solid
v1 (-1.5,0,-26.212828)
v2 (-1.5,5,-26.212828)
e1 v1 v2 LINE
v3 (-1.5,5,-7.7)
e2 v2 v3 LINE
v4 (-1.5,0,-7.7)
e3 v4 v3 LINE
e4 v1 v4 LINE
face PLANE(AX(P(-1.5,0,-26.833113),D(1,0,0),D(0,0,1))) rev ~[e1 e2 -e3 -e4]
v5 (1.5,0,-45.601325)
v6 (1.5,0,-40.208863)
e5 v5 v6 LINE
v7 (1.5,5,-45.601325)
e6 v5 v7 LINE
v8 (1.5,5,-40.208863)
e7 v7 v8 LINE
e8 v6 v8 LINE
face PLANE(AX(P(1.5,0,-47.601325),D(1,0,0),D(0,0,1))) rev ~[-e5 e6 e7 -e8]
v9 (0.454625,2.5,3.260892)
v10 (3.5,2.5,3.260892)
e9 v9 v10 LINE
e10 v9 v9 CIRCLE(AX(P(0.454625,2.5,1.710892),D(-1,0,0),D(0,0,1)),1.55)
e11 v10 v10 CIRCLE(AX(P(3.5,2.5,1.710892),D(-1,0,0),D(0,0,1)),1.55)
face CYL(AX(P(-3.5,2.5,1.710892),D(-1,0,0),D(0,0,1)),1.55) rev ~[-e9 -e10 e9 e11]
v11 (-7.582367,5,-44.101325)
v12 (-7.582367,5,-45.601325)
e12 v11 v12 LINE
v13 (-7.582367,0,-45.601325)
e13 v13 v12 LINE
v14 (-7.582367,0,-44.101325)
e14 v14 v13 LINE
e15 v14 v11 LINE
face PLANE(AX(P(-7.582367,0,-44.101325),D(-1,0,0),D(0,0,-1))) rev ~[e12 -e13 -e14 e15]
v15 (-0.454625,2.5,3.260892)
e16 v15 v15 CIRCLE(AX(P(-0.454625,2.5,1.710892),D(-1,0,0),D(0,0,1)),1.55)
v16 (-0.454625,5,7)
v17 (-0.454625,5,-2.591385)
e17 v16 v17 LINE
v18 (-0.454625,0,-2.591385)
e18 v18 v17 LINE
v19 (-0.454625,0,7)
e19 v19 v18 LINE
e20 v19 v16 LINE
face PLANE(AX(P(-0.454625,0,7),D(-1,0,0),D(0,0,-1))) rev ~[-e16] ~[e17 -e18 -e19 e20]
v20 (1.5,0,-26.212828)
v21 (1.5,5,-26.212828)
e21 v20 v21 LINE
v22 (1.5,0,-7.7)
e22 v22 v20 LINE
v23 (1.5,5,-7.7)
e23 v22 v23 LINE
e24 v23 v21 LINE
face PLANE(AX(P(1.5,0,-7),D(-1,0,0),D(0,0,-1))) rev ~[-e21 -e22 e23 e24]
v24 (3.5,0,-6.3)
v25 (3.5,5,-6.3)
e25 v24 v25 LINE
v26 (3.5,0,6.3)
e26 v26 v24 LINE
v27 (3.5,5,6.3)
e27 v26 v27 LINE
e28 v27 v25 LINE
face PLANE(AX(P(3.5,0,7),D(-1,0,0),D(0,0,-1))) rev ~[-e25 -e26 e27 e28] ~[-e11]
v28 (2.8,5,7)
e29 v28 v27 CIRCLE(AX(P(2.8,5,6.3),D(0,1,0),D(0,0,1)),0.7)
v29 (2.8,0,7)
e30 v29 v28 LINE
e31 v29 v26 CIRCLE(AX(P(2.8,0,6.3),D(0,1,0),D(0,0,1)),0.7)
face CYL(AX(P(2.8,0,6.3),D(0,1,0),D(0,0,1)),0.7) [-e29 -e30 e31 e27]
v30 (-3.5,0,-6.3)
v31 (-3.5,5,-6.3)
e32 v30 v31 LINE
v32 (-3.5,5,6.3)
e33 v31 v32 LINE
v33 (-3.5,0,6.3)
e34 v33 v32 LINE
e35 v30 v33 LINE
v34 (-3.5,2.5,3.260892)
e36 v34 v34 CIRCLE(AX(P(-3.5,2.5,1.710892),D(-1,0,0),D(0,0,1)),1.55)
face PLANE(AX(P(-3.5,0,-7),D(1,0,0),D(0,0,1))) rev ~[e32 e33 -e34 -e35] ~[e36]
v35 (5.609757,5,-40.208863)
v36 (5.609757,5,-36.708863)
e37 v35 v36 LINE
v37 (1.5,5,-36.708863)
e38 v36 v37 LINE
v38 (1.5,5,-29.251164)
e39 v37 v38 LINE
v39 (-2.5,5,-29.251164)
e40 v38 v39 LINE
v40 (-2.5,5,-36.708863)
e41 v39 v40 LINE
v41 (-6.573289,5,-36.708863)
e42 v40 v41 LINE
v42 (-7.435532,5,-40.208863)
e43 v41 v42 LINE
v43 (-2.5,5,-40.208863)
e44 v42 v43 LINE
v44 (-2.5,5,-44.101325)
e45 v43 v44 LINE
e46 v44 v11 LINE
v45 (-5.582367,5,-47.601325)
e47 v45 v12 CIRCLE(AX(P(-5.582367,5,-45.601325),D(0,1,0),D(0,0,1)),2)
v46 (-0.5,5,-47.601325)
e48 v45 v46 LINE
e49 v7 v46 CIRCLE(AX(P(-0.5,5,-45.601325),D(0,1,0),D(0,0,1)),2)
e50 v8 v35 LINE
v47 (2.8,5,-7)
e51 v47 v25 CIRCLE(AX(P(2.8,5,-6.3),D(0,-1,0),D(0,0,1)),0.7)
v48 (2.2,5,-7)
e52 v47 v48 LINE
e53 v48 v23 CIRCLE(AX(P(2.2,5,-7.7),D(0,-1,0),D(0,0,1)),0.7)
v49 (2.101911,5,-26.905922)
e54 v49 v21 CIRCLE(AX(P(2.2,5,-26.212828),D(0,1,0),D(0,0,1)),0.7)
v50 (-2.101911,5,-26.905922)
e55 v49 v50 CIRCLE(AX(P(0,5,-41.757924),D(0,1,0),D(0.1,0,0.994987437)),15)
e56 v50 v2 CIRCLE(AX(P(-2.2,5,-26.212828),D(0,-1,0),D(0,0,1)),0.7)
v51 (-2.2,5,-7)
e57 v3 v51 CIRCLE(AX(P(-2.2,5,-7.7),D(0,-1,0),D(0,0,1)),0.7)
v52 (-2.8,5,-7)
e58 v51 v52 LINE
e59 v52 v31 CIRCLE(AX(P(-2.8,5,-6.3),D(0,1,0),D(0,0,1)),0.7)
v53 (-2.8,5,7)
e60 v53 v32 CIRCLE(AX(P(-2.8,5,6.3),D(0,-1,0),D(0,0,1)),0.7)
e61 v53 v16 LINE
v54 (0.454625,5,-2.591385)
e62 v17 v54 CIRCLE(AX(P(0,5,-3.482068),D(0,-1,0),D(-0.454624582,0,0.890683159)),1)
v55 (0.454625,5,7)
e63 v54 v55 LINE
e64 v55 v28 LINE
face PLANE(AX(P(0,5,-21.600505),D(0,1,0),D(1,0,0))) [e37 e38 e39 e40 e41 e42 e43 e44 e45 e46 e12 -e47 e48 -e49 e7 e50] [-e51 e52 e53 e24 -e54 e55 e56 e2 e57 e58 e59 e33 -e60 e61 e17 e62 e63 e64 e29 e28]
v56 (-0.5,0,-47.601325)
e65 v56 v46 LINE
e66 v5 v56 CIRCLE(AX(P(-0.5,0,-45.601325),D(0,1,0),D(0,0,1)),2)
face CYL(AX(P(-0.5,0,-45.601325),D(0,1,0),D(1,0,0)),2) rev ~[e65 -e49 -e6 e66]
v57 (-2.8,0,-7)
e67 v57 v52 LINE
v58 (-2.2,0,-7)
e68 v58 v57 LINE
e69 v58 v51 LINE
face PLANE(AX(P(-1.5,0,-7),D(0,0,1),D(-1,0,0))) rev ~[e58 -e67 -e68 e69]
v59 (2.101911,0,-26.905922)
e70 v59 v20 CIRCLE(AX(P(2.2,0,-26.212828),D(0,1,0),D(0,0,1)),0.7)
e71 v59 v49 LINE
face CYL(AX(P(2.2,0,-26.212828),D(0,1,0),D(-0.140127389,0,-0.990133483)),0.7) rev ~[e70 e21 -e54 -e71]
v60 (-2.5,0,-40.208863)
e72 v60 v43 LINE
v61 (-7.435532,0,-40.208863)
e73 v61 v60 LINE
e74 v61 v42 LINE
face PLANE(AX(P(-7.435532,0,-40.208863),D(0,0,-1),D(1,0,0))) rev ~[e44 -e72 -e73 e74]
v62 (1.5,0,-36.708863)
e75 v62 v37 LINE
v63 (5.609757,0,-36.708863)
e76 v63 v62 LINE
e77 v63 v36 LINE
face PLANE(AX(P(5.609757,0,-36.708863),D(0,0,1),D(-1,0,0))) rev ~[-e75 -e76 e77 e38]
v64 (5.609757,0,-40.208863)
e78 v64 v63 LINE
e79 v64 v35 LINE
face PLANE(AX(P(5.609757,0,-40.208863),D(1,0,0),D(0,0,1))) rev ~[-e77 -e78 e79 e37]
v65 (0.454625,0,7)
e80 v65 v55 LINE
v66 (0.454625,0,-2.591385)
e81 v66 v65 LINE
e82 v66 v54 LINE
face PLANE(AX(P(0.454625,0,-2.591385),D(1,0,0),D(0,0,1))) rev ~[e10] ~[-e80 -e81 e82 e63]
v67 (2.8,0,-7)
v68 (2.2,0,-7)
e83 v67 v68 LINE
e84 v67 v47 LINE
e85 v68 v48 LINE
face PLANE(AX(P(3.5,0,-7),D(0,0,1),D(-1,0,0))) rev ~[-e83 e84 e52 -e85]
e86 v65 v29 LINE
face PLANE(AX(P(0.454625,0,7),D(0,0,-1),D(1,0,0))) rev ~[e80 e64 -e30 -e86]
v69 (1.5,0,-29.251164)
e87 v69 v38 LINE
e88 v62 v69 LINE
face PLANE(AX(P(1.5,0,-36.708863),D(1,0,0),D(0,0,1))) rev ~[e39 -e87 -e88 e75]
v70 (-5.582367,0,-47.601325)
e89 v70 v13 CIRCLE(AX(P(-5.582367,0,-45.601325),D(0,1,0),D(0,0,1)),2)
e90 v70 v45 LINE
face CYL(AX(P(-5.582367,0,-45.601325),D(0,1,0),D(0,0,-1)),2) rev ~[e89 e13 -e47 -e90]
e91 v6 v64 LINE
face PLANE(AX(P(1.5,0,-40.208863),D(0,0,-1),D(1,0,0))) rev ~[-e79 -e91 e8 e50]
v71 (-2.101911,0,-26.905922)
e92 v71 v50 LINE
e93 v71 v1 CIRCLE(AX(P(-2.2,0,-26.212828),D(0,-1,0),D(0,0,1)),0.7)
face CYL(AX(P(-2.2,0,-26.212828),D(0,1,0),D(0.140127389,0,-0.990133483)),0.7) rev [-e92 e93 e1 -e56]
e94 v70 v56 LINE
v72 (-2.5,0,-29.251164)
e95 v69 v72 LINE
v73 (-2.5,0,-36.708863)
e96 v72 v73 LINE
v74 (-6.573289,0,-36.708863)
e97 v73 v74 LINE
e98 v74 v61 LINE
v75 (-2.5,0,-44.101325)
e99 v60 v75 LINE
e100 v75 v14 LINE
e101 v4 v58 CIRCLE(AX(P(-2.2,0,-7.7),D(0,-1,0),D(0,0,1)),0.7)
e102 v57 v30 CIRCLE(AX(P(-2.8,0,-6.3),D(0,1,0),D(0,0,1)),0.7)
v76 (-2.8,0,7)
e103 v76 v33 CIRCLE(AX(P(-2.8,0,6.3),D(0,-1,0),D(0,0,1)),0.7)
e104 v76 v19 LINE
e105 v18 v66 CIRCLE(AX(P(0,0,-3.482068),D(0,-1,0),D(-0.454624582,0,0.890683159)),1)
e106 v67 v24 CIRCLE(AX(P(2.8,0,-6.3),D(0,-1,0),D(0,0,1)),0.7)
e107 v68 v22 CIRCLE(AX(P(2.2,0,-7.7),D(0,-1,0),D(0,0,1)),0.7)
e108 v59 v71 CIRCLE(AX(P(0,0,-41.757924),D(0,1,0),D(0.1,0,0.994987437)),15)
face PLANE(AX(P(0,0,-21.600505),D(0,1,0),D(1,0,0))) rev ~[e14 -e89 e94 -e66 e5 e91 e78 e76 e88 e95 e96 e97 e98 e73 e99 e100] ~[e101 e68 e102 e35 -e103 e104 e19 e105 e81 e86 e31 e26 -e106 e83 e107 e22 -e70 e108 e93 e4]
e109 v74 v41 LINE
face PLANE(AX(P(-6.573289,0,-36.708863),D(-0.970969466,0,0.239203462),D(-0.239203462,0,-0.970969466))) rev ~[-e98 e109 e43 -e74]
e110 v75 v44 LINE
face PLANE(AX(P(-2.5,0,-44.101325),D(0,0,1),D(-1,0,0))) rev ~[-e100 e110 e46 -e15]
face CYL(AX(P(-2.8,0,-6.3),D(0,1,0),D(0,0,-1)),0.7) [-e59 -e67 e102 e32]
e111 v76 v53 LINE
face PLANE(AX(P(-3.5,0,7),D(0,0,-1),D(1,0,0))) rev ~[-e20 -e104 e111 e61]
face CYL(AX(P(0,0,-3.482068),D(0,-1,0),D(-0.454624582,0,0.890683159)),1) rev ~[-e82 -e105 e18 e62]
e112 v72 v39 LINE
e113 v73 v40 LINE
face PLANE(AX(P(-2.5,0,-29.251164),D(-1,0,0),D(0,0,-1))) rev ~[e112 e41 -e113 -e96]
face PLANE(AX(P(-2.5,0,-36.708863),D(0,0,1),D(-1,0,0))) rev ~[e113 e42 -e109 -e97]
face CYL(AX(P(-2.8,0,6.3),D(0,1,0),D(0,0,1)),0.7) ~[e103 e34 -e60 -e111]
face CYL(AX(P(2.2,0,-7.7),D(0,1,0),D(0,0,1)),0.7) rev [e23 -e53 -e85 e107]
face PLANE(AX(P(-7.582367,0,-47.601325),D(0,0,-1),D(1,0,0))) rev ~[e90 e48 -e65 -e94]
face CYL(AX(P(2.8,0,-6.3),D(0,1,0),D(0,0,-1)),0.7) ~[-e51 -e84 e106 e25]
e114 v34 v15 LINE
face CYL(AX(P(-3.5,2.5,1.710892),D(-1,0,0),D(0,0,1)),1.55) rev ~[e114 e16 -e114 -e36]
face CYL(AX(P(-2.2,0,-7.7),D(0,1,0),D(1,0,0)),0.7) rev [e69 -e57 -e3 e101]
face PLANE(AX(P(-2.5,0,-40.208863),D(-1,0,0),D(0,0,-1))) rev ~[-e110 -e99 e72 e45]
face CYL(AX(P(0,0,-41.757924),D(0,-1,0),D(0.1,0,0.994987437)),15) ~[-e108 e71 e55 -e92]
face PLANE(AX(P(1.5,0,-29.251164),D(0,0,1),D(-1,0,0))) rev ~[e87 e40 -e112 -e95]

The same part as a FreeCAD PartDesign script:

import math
import FreeCAD as App
import Part
import Sketcher

V = App.Vector


def edges_at(feature, points):
    """Names of the edges that pass closest to the given points."""
    edges = feature.Shape.Edges
    near = lambda p: min(range(len(edges)), key=lambda i: edges[i].distToShape(Part.Vertex(*p))[0])
    return sorted({f"Edge{near(p) + 1}" for p in points})

doc = App.newDocument("Part")
body = doc.addObject("PartDesign::Body", "Body")

sketch1 = body.newObject("Sketcher::SketchObject", "Sketch")
sketch1.AttachmentSupport = (doc.getObject("XZ_Plane"), [""])
sketch1.MapMode = "FlatFace"
sketch1.addGeometry(Part.LineSegment(V(0.5, -2.6, 0), V(0.5, 7, 0)), False)
sketch1.addGeometry(Part.LineSegment(V(0.5, 7, 0), V(3.5, 7, 0)), False)
sketch1.addGeometry(Part.LineSegment(V(3.5, 7, 0), V(3.5, -7, 0)), False)
sketch1.addGeometry(Part.LineSegment(V(3.5, -7, 0), V(1.5, -7, 0)), False)
sketch1.addGeometry(Part.LineSegment(V(1.5, -7, 0), V(1.5, -26.8, 0)), False)
sketch1.addGeometry(Part.ArcOfCircle(Part.Circle(V(0, -41.8, 0), V(0, 0, 1), 15), math.radians(96), math.radians(444)), False)
sketch1.addGeometry(Part.LineSegment(V(-1.5, -26.8, 0), V(-1.5, -7, 0)), False)
sketch1.addGeometry(Part.LineSegment(V(-1.5, -7, 0), V(-3.5, -7, 0)), False)
sketch1.addGeometry(Part.LineSegment(V(-3.5, -7, 0), V(-3.5, 7, 0)), False)
sketch1.addGeometry(Part.LineSegment(V(-3.5, 7, 0), V(-0.5, 7, 0)), False)
sketch1.addGeometry(Part.LineSegment(V(-0.5, 7, 0), V(-0.5, -2.6, 0)), False)
sketch1.addGeometry(Part.ArcOfCircle(Part.Circle(V(0, -3.5, 0), V(0, 0, 1), 1), math.radians(117), math.radians(423)), False)
sketch1.addGeometry(Part.LineSegment(V(5.6, -36.7, 0), V(1.5, -36.7, 0)), False)
sketch1.addGeometry(Part.LineSegment(V(1.5, -36.7, 0), V(1.5, -29.3, 0)), False)
sketch1.addGeometry(Part.LineSegment(V(1.5, -29.3, 0), V(-2.5, -29.3, 0)), False)
sketch1.addGeometry(Part.LineSegment(V(-2.5, -29.3, 0), V(-2.5, -36.7, 0)), False)
sketch1.addGeometry(Part.LineSegment(V(-2.5, -36.7, 0), V(-6.6, -36.7, 0)), False)
sketch1.addGeometry(Part.LineSegment(V(-6.6, -36.7, 0), V(-7.4, -40.2, 0)), False)
sketch1.addGeometry(Part.LineSegment(V(-7.4, -40.2, 0), V(-2.5, -40.2, 0)), False)
sketch1.addGeometry(Part.LineSegment(V(-2.5, -40.2, 0), V(-2.5, -44.1, 0)), False)
sketch1.addGeometry(Part.LineSegment(V(-2.5, -44.1, 0), V(-7.6, -44.1, 0)), False)
sketch1.addGeometry(Part.LineSegment(V(-7.6, -44.1, 0), V(-7.6, -47.6, 0)), False)
sketch1.addGeometry(Part.LineSegment(V(-7.6, -47.6, 0), V(1.5, -47.6, 0)), False)
sketch1.addGeometry(Part.LineSegment(V(1.5, -47.6, 0), V(1.5, -40.2, 0)), False)
sketch1.addGeometry(Part.LineSegment(V(1.5, -40.2, 0), V(5.6, -40.2, 0)), False)
sketch1.addGeometry(Part.LineSegment(V(5.6, -40.2, 0), V(5.6, -36.7, 0)), False)
sketch1.addConstraint(Sketcher.Constraint("Coincident", 0, 2, 1, 1))
sketch1.addConstraint(Sketcher.Constraint("Coincident", 1, 2, 2, 1))
sketch1.addConstraint(Sketcher.Constraint("Coincident", 2, 2, 3, 1))
sketch1.addConstraint(Sketcher.Constraint("Coincident", 3, 2, 4, 1))
sketch1.addConstraint(Sketcher.Constraint("Coincident", 4, 2, 5, 2))
sketch1.addConstraint(Sketcher.Constraint("Coincident", 5, 1, 6, 1))
sketch1.addConstraint(Sketcher.Constraint("Coincident", 6, 2, 7, 1))
sketch1.addConstraint(Sketcher.Constraint("Coincident", 7, 2, 8, 1))
sketch1.addConstraint(Sketcher.Constraint("Coincident", 8, 2, 9, 1))
sketch1.addConstraint(Sketcher.Constraint("Coincident", 9, 2, 10, 1))
sketch1.addConstraint(Sketcher.Constraint("Coincident", 10, 2, 11, 1))
sketch1.addConstraint(Sketcher.Constraint("Coincident", 11, 2, 0, 1))
sketch1.addConstraint(Sketcher.Constraint("Coincident", 12, 2, 13, 1))
sketch1.addConstraint(Sketcher.Constraint("Coincident", 13, 2, 14, 1))
sketch1.addConstraint(Sketcher.Constraint("Coincident", 14, 2, 15, 1))
sketch1.addConstraint(Sketcher.Constraint("Coincident", 15, 2, 16, 1))
sketch1.addConstraint(Sketcher.Constraint("Coincident", 16, 2, 17, 1))
sketch1.addConstraint(Sketcher.Constraint("Coincident", 17, 2, 18, 1))
sketch1.addConstraint(Sketcher.Constraint("Coincident", 18, 2, 19, 1))
sketch1.addConstraint(Sketcher.Constraint("Coincident", 19, 2, 20, 1))
sketch1.addConstraint(Sketcher.Constraint("Coincident", 20, 2, 21, 1))
sketch1.addConstraint(Sketcher.Constraint("Coincident", 21, 2, 22, 1))
sketch1.addConstraint(Sketcher.Constraint("Coincident", 22, 2, 23, 1))
sketch1.addConstraint(Sketcher.Constraint("Coincident", 23, 2, 24, 1))
sketch1.addConstraint(Sketcher.Constraint("Coincident", 24, 2, 25, 1))
sketch1.addConstraint(Sketcher.Constraint("Coincident", 25, 2, 12, 1))
sketch1.addConstraint(Sketcher.Constraint("Vertical", 0))
sketch1.addConstraint(Sketcher.Constraint("Horizontal", 1))
sketch1.addConstraint(Sketcher.Constraint("Vertical", 2))
sketch1.addConstraint(Sketcher.Constraint("Horizontal", 3))
sketch1.addConstraint(Sketcher.Constraint("Vertical", 4))
sketch1.addConstraint(Sketcher.Constraint("Vertical", 6))
sketch1.addConstraint(Sketcher.Constraint("Horizontal", 7))
sketch1.addConstraint(Sketcher.Constraint("Vertical", 8))
sketch1.addConstraint(Sketcher.Constraint("Horizontal", 9))
sketch1.addConstraint(Sketcher.Constraint("Vertical", 10))
sketch1.addConstraint(Sketcher.Constraint("Horizontal", 12))
sketch1.addConstraint(Sketcher.Constraint("Vertical", 13))
sketch1.addConstraint(Sketcher.Constraint("Horizontal", 14))
sketch1.addConstraint(Sketcher.Constraint("Vertical", 15))
sketch1.addConstraint(Sketcher.Constraint("Horizontal", 16))
sketch1.addConstraint(Sketcher.Constraint("Horizontal", 18))
sketch1.addConstraint(Sketcher.Constraint("Vertical", 19))
sketch1.addConstraint(Sketcher.Constraint("Horizontal", 20))
sketch1.addConstraint(Sketcher.Constraint("Vertical", 21))
sketch1.addConstraint(Sketcher.Constraint("Horizontal", 22))
sketch1.addConstraint(Sketcher.Constraint("Vertical", 23))
sketch1.addConstraint(Sketcher.Constraint("Horizontal", 24))
sketch1.addConstraint(Sketcher.Constraint("Vertical", 25))
sketch1.addConstraint(Sketcher.Constraint("Symmetric", 1, 2, 7, 2, -1, 1))
sketch1.addConstraint(Sketcher.Constraint("Symmetric", 4, 2, 5, 1, -2))
sketch1.addConstraint(Sketcher.Constraint("Symmetric", 0, 2, 9, 2, -2))
sketch1.addConstraint(Sketcher.Constraint("PointOnObject", 11, 3, -2))
sketch1.addConstraint(Sketcher.Constraint("Horizontal", 3, 2, 6, 2))
sketch1.addConstraint(Sketcher.Constraint("Horizontal", 12, 2, 15, 2))
sketch1.addConstraint(Sketcher.Constraint("Horizontal", 18, 2, 23, 2))
sketch1.addConstraint(Sketcher.Constraint("Vertical", 4, 2, 12, 2))
sketch1.addConstraint(Sketcher.Constraint("Vertical", 15, 2, 18, 2))
sketch1.addConstraint(Sketcher.Constraint("Vertical", 13, 2, 22, 2))
sketch1.addConstraint(Sketcher.Constraint("Equal", 21, 25))
sketch1.addConstraint(Sketcher.Constraint("Radius", 5, 15.0))
sketch1.addConstraint(Sketcher.Constraint("Radius", 11, 1.0))
sketch1.addConstraint(Sketcher.Constraint("DistanceX", 3, 2, 3, 1, 2.0))
sketch1.addConstraint(Sketcher.Constraint("DistanceX", 14, 2, 14, 1, 4.0))
sketch1.addConstraint(Sketcher.Constraint("DistanceY", 2, 2, 2, 1, 14.0))
sketch1.addConstraint(Sketcher.Constraint("DistanceY", 21, 2, 21, 1, 3.5))
sketch1.addConstraint(Sketcher.Constraint("DistanceX", 5, 1, 4, 2, 3.0))
sketch1.addConstraint(Sketcher.Constraint("DistanceY", 13, 1, 13, 2, 7.457699))
sketch1.addConstraint(Sketcher.Constraint("DistanceX", 16, 2, 16, 1, 4.073289))
sketch1.addConstraint(Sketcher.Constraint("DistanceY", 19, 2, 5, 3, 2.343401))
sketch1.addConstraint(Sketcher.Constraint("DistanceX", 1, 1, 1, 2, 3.045375))
sketch1.addConstraint(Sketcher.Constraint("DistanceX", 12, 2, 12, 1, 4.109757))
sketch1.addConstraint(Sketcher.Constraint("DistanceX", 18, 1, 18, 2, 4.935532))
sketch1.addConstraint(Sketcher.Constraint("DistanceX", 20, 2, 20, 1, 5.082367))
sketch1.addConstraint(Sketcher.Constraint("DistanceY", 0, 1, 0, 2, 9.591385))
sketch1.addConstraint(Sketcher.Constraint("DistanceY", 4, 2, 4, 1, 19.833113))
sketch1.addConstraint(Sketcher.Constraint("DistanceY", 19, 2, 19, 1, 3.892462))
pad1 = body.newObject("PartDesign::Pad", "Pad")
pad1.Profile = sketch1
pad1.Length = 5
pad1.Reversed = True

sketch2 = body.newObject("Sketcher::SketchObject", "Sketch001")
sketch2.AttachmentSupport = (doc.getObject("YZ_Plane"), [""])
sketch2.MapMode = "FlatFace"
sketch2.AttachmentOffset = App.Placement(V(0, 0, -3.5), App.Rotation())
sketch2.addGeometry(Part.Circle(V(2.5, 1.7, 0), V(0, 0, 1), 1.6), False)
sketch2.addConstraint(Sketcher.Constraint("Diameter", 0, 3.1))
sketch2.addConstraint(Sketcher.Constraint("DistanceX", -1, 1, 0, 3, 2.5))
sketch2.addConstraint(Sketcher.Constraint("DistanceY", -1, 1, 0, 3, 1.710892))
pocket1 = body.newObject("PartDesign::Pocket", "Pocket")
pocket1.Profile = sketch2
pocket1.Type = "ThroughAll"
pocket1.Reversed = True
doc.recompute()

fillet = body.newObject("PartDesign::Fillet", "Fillet")
fillet.Base = (pocket1, edges_at(pocket1, [(1.5, 2.5, -7)]))
fillet.Radius = 0.7
doc.recompute()

fillet2 = body.newObject("PartDesign::Fillet", "Fillet001")
fillet2.Base = (fillet, edges_at(fillet, [(3.5, 2.5, -7)]))
fillet2.Radius = 0.7
doc.recompute()

fillet3 = body.newObject("PartDesign::Fillet", "Fillet002")
fillet3.Base = (fillet2, edges_at(fillet2, [(-1.5, 2.5, -7)]))
fillet3.Radius = 0.7
doc.recompute()

fillet4 = body.newObject("PartDesign::Fillet", "Fillet003")
fillet4.Base = (fillet3, edges_at(fillet3, [(-3.5, 2.5, -7)]))
fillet4.Radius = 0.7
doc.recompute()

fillet5 = body.newObject("PartDesign::Fillet", "Fillet004")
fillet5.Base = (fillet4, edges_at(fillet4, [(3.5, 2.5, 7)]))
fillet5.Radius = 0.7
doc.recompute()

fillet6 = body.newObject("PartDesign::Fillet", "Fillet005")
fillet6.Base = (fillet5, edges_at(fillet5, [(-3.5, 2.5, 7)]))
fillet6.Radius = 0.7
doc.recompute()

fillet7 = body.newObject("PartDesign::Fillet", "Fillet006")
fillet7.Base = (fillet6, edges_at(fillet6, [(1.5, 2.5, -26.833)]))
fillet7.Radius = 0.7
doc.recompute()

fillet8 = body.newObject("PartDesign::Fillet", "Fillet007")
fillet8.Base = (fillet7, edges_at(fillet7, [(-1.5, 2.5, -26.833)]))
fillet8.Radius = 0.7
doc.recompute()

fillet9 = body.newObject("PartDesign::Fillet", "Fillet008")
fillet9.Base = (fillet8, edges_at(fillet8, [(1.5, 2.5, -47.601)]))
fillet9.Radius = 2
doc.recompute()

fillet10 = body.newObject("PartDesign::Fillet", "Fillet009")
fillet10.Base = (fillet9, edges_at(fillet9, [(-7.582, 2.5, -47.601)]))
fillet10.Radius = 2

doc.recompute()
